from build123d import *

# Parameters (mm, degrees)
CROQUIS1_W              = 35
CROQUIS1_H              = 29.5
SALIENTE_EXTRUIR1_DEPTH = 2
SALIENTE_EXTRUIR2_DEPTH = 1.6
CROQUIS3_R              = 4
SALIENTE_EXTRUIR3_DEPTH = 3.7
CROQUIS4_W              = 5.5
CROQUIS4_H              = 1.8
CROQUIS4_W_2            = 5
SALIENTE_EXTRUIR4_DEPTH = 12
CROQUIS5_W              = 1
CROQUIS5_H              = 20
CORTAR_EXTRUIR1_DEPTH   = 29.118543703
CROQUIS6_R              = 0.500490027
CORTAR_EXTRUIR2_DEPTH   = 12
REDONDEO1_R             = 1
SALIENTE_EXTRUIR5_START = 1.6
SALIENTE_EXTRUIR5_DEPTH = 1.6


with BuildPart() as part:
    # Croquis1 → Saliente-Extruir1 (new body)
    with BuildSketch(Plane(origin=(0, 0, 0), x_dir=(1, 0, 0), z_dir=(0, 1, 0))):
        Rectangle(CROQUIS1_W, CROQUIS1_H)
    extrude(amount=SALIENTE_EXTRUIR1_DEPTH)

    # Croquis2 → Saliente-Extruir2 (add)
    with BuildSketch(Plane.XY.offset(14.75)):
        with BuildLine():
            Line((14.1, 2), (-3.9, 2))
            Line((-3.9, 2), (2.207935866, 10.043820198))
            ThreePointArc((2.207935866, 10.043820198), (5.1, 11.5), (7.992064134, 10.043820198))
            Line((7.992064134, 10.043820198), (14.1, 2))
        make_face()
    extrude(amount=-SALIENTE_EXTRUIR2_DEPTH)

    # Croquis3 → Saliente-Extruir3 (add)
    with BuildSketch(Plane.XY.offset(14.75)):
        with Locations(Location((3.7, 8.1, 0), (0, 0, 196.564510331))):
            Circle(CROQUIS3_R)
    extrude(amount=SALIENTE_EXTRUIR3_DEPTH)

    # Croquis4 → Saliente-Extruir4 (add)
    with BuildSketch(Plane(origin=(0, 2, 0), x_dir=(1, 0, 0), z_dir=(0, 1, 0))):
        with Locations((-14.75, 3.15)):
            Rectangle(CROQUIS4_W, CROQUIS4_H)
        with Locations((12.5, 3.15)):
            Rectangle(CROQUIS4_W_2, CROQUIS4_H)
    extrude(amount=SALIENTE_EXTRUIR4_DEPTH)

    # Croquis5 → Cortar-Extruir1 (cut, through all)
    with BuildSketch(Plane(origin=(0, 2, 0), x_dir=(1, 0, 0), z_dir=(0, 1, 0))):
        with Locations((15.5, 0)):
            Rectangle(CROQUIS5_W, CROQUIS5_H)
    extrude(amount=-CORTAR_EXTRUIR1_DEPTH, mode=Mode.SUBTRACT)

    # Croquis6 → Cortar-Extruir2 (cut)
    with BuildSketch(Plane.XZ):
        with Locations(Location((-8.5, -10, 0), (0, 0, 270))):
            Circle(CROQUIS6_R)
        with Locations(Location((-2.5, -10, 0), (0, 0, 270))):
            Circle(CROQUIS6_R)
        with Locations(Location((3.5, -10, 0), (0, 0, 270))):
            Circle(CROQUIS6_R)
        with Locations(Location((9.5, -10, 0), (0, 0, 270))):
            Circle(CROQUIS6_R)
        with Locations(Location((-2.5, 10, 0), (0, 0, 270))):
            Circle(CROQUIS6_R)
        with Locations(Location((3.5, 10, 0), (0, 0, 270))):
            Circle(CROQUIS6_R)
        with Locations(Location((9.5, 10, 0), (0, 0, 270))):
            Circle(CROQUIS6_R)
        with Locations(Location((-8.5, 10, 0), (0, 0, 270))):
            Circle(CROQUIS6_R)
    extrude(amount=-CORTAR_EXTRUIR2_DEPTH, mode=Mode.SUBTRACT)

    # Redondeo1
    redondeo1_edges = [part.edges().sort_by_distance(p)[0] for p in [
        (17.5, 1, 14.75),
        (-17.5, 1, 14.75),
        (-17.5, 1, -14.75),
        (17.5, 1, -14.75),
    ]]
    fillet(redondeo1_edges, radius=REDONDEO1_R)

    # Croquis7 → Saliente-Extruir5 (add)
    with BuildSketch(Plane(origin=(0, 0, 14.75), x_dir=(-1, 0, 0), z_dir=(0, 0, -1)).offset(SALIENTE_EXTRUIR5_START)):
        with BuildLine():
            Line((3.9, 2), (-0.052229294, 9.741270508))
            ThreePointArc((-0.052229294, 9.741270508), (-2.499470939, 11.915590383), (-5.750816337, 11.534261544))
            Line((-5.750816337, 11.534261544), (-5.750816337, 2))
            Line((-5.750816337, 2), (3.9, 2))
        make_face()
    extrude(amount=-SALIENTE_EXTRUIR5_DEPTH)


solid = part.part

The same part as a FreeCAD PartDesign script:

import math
import FreeCAD as App
import Part
import Sketcher

V = App.Vector


def edges_at(feature, points):
    """Names of the edges that pass closest to the given points."""
    edges = feature.Shape.Edges
    near = lambda p: min(range(len(edges)), key=lambda i: edges[i].distToShape(Part.Vertex(*p))[0])
    return sorted({f"Edge{near(p) + 1}" for p in points})

doc = App.newDocument("Part")
body = doc.addObject("PartDesign::Body", "Body")

sketch1 = body.newObject("Sketcher::SketchObject", "Sketch")
sketch1.AttachmentSupport = (doc.getObject("XZ_Plane"), [""])
sketch1.MapMode = "FlatFace"
sketch1.addGeometry([
    Part.LineSegment(V(-18, -15, 0), V(-18, 15, 0)),
    Part.LineSegment(V(-18, 15, 0), V(18, 15, 0)),
    Part.LineSegment(V(18, 15, 0), V(18, -15, 0)),
    Part.LineSegment(V(18, -15, 0), V(-18, -15, 0)),
], False)
sketch1.addConstraint([
    Sketcher.Constraint("Coincident", 0, 2, 1, 1),
    Sketcher.Constraint("Coincident", 1, 2, 2, 1),
    Sketcher.Constraint("Coincident", 2, 2, 3, 1),
    Sketcher.Constraint("Coincident", 3, 2, 0, 1),
    Sketcher.Constraint("Vertical", 0),
    Sketcher.Constraint("Horizontal", 1),
    Sketcher.Constraint("Vertical", 2),
    Sketcher.Constraint("Horizontal", 3),
    Sketcher.Constraint("Symmetric", 0, 2, 2, 2, -1, 1),
    Sketcher.Constraint("DistanceX", 1, 1, 1, 2, 35.0),
    Sketcher.Constraint("DistanceY", 0, 1, 0, 2, 29.5),
])
pad1 = body.newObject("PartDesign::Pad", "Pad")
pad1.Profile = sketch1
pad1.Length = 2
pad1.Reversed = True

sketch2 = body.newObject("Sketcher::SketchObject", "Sketch001")
sketch2.AttachmentSupport = (doc.getObject("XY_Plane"), [""])
sketch2.MapMode = "FlatFace"
sketch2.AttachmentOffset = App.Placement(V(0, 0, 14.75), App.Rotation())
sketch2.addGeometry([
    Part.LineSegment(V(-3.9, 2, 0), V(14.1, 2, 0)),
    Part.LineSegment(V(14.1, 2, 0), V(8, 10, 0)),
    Part.ArcOfCircle(Part.Circle(V(5.1, 7.9, 0), V(0, 0, 1), 3.6), math.radians(37), math.radians(143)),
    Part.LineSegment(V(2.2, 10, 0), V(-3.9, 2, 0)),
], False)
sketch2.addConstraint([
    Sketcher.Constraint("Coincident", 0, 2, 1, 1),
    Sketcher.Constraint("Coincident", 1, 2, 2, 1),
    Sketcher.Constraint("Coincident", 2, 2, 3, 1),
    Sketcher.Constraint("Coincident", 3, 2, 0, 1),
    Sketcher.Constraint("Horizontal", 0),
    Sketcher.Constraint("Horizontal", 1, 2, 2, 2),
    Sketcher.Constraint("Equal", 1, 3),
    Sketcher.Constraint("Radius", 2, 3.6),
    Sketcher.Constraint("DistanceX", 0, 1, 0, 2, 18.0),
    Sketcher.Constraint("DistanceY", -1, 1, 0, 2, 2.0),
    Sketcher.Constraint("DistanceX", -1, 1, 2, 3, 5.1),
    Sketcher.Constraint("DistanceY", -1, 1, 2, 3, 7.9),
    Sketcher.Constraint("DistanceY", -1, 1, 1, 2, 10.04382),
])
pad2 = body.newObject("PartDesign::Pad", "Pad001")
pad2.Profile = sketch2
pad2.Length = 1.6
pad2.Reversed = True

sketch3 = body.newObject("Sketcher::SketchObject", "Sketch002")
sketch3.AttachmentSupport = (doc.getObject("XY_Plane"), [""])
sketch3.MapMode = "FlatFace"
sketch3.AttachmentOffset = App.Placement(V(0, 0, 14.75), App.Rotation())
sketch3.addGeometry(Part.Circle(V(3.7, 8.1, 0), V(0, 0, 1), 4), False)
sketch3.addConstraint([
    Sketcher.Constraint("Diameter", 0, 8.0),
    Sketcher.Constraint("DistanceX", -1, 1, 0, 3, 3.7),
    Sketcher.Constraint("DistanceY", -1, 1, 0, 3, 8.1),
])
pad3 = body.newObject("PartDesign::Pad", "Pad002")
pad3.Profile = sketch3
pad3.Length = 3.7

sketch4 = body.newObject("Sketcher::SketchObject", "Sketch003")
sketch4.AttachmentSupport = (doc.getObject("XZ_Plane"), [""])
sketch4.MapMode = "FlatFace"
sketch4.AttachmentOffset = App.Placement(V(0, 0, -2), App.Rotation())
sketch4.addGeometry([
    Part.LineSegment(V(-17.5, -4, 0), V(-17.5, -2.2, 0)),
    Part.LineSegment(V(-17.5, -2.2, 0), V(-12, -2.2, 0)),
    Part.LineSegment(V(-12, -2.2, 0), V(-12, -4, 0)),
    Part.LineSegment(V(-12, -4, 0), V(-17.5, -4, 0)),
    Part.LineSegment(V(10, -4, 0), V(10, -2.2, 0)),
    Part.LineSegment(V(10, -2.2, 0), V(15, -2.2, 0)),
    Part.LineSegment(V(15, -2.2, 0), V(15, -4, 0)),
    Part.LineSegment(V(15, -4, 0), V(10, -4, 0)),
], False)
sketch4.addConstraint([
    Sketcher.Constraint("Coincident", 0, 2, 1, 1),
    Sketcher.Constraint("Coincident", 1, 2, 2, 1),
    Sketcher.Constraint("Coincident", 2, 2, 3, 1),
    Sketcher.Constraint("Coincident", 3, 2, 0, 1),
    Sketcher.Constraint("Coincident", 4, 2, 5, 1),
    Sketcher.Constraint("Coincident", 5, 2, 6, 1),
    Sketcher.Constraint("Coincident", 6, 2, 7, 1),
    Sketcher.Constraint("Coincident", 7, 2, 4, 1),
    Sketcher.Constraint("Vertical", 0),
    Sketcher.Constraint("Horizontal", 1),
    Sketcher.Constraint("Vertical", 2),
    Sketcher.Constraint("Horizontal", 3),
    Sketcher.Constraint("Vertical", 4),
    Sketcher.Constraint("Horizontal", 5),
    Sketcher.Constraint("Vertical", 6),
    Sketcher.Constraint("Horizontal", 7),
    Sketcher.Constraint("Horizontal", 1, 2, 4, 2),
    Sketcher.Constraint("Horizontal", 3, 2, 6, 2),
    Sketcher.Constraint("DistanceX", 5, 1, 5, 2, 5.0),
    Sketcher.Constraint("DistanceX", 1, 1, 1, 2, 5.5),
    Sketcher.Constraint("DistanceY", 0, 1, 0, 2, 1.8),
    Sketcher.Constraint("DistanceX", 1, 2, -1, 1, 12.0),
    Sketcher.Constraint("DistanceX", -1, 1, 4, 2, 10.0),
    Sketcher.Constraint("DistanceY", 0, 2, -1, 1, 2.25),
])
pad4 = body.newObject("PartDesign::Pad", "Pad003")
pad4.Profile = sketch4
pad4.Length = 12
pad4.Reversed = True

sketch5 = body.newObject("Sketcher::SketchObject", "Sketch004")
sketch5.AttachmentSupport = (doc.getObject("XZ_Plane"), [""])
sketch5.MapMode = "FlatFace"
sketch5.AttachmentOffset = App.Placement(V(0, 0, -2), App.Rotation())
sketch5.addGeometry([
    Part.LineSegment(V(15, -10, 0), V(15, 10, 0)),
    Part.LineSegment(V(15, 10, 0), V(16, 10, 0)),
    Part.LineSegment(V(16, 10, 0), V(16, -10, 0)),
    Part.LineSegment(V(16, -10, 0), V(15, -10, 0)),
], False)
sketch5.addConstraint([
    Sketcher.Constraint("Coincident", 0, 2, 1, 1),
    Sketcher.Constraint("Coincident", 1, 2, 2, 1),
    Sketcher.Constraint("Coincident", 2, 2, 3, 1),
    Sketcher.Constraint("Coincident", 3, 2, 0, 1),
    Sketcher.Constraint("Vertical", 0),
    Sketcher.Constraint("Horizontal", 1),
    Sketcher.Constraint("Vertical", 2),
    Sketcher.Constraint("Horizontal", 3),
    Sketcher.Constraint("DistanceX", 1, 1, 1, 2, 1.0),
    Sketcher.Constraint("DistanceY", 0, 1, 0, 2, 20.0),
    Sketcher.Constraint("DistanceX", -1, 1, 0, 2, 15.0),
    Sketcher.Constraint("DistanceY", -1, 1, 0, 2, 10.0),
])
pocket1 = body.newObject("PartDesign::Pocket", "Pocket")
pocket1.Profile = sketch5
pocket1.Type = "ThroughAll"
pocket1.Reversed = True

sketch6 = body.newObject("Sketcher::SketchObject", "Sketch005")
sketch6.AttachmentSupport = (doc.getObject("XZ_Plane"), [""])
sketch6.MapMode = "FlatFace"
sketch6.addGeometry([
    Part.Circle(V(-8.5, -10, 0), V(0, 0, 1), 0.5),
    Part.Circle(V(-2.5, -10, 0), V(0, 0, 1), 0.5),
    Part.Circle(V(3.5, -10, 0), V(0, 0, 1), 0.5),
    Part.Circle(V(9.5, -10, 0), V(0, 0, 1), 0.5),
    Part.Circle(V(-2.5, 10, 0), V(0, 0, 1), 0.5),
    Part.Circle(V(3.5, 10, 0), V(0, 0, 1), 0.5),
    Part.Circle(V(9.5, 10, 0), V(0, 0, 1), 0.5),
    Part.Circle(V(-8.5, 10, 0), V(0, 0, 1), 0.5),
], False)
sketch6.addConstraint([
    Sketcher.Constraint("Equal", 0, 1),
    Sketcher.Constraint("Equal", 1, 2),
    Sketcher.Constraint("Equal", 2, 3),
    Sketcher.Constraint("Equal", 3, 4),
    Sketcher.Constraint("Equal", 4, 5),
    Sketcher.Constraint("Equal", 5, 6),
    Sketcher.Constraint("Equal", 6, 7),
    Sketcher.Constraint("Symmetric", 1, 3, 4, 3, -1),
    Sketcher.Constraint("Symmetric", 2, 3, 5, 3, -1),
    Sketcher.Constraint("Symmetric", 3, 3, 6, 3, -1),
    Sketcher.Constraint("Symmetric", 0, 3, 7, 3, -1),
    Sketcher.Constraint("Horizontal", 0, 3, 1, 3),
    Sketcher.Constraint("Horizontal", 1, 3, 2, 3),
    Sketcher.Constraint("Horizontal", 2, 3, 3, 3),
    Sketcher.Constraint("DistanceY", 0, 3, -1, 1, 10.0),
    Sketcher.Constraint("DistanceX", 0, 3, 1, 3, 6.0),
    Sketcher.Constraint("DistanceX", 1, 3, 2, 3, 6.0),
    Sketcher.Constraint("DistanceX", 2, 3, 3, 3, 6.0),
    Sketcher.Constraint("DistanceX", 0, 3, -1, 1, 8.5),
    Sketcher.Constraint("Diameter", 0, 1.00098),
])
pocket2 = body.newObject("PartDesign::Pocket", "Pocket001")
pocket2.Profile = sketch6
pocket2.Length = 12
doc.recompute()

fillet = body.newObject("PartDesign::Fillet", "Fillet")
fillet.Base = (pocket2, edges_at(pocket2, [
    (17.5, 1, 14.75),
    (-17.5, 1, 14.75),
    (-17.5, 1, -14.75),
    (17.5, 1, -14.75),
]))
fillet.Radius = 1

sketch7 = body.newObject("Sketcher::SketchObject", "Sketch006")
sketch7.AttachmentSupport = (doc.getObject("XY_Plane"), [""])
sketch7.MapMode = "FlatFace"
sketch7.AttachmentOffset = App.Placement(V(0, 0, 13.15), App.Rotation())
sketch7.addGeometry([
    Part.LineSegment(V(-3.9, 2, 0), V(0.1, 9.7, 0)),
    Part.ArcOfCircle(Part.Circle(V(3.7, 8.1, 0), V(0, 0, 1), 4), math.radians(59), math.radians(156)),
    Part.LineSegment(V(5.8, 11.5, 0), V(5.8, 2, 0)),
    Part.LineSegment(V(5.8, 2, 0), V(-3.9, 2, 0)),
], False)
sketch7.addConstraint([
    Sketcher.Constraint("Coincident", 0, 2, 1, 2),
    Sketcher.Constraint("Coincident", 1, 1, 2, 1),
    Sketcher.Constraint("Coincident", 2, 2, 3, 1),
    Sketcher.Constraint("Coincident", 3, 2, 0, 1),
    Sketcher.Constraint("Vertical", 2),
    Sketcher.Constraint("Horizontal", 3),
    Sketcher.Constraint("Radius", 1, 4.0),
    Sketcher.Constraint("DistanceY", -1, 1, 2, 2, 2.0),
    Sketcher.Constraint("DistanceX", -1, 1, 1, 3, 3.7),
    Sketcher.Constraint("DistanceY", -1, 1, 1, 3, 8.1),
    Sketcher.Constraint("DistanceX", 3, 2, -1, 1, 3.9),
    Sketcher.Constraint("Distance", 0, 8.6918),
    Sketcher.Constraint("DistanceY", 2, 2, 2, 1, 9.534262),
])
pad5 = body.newObject("PartDesign::Pad", "Pad004")
pad5.Profile = sketch7
pad5.Length = 1.6

doc.recompute()
